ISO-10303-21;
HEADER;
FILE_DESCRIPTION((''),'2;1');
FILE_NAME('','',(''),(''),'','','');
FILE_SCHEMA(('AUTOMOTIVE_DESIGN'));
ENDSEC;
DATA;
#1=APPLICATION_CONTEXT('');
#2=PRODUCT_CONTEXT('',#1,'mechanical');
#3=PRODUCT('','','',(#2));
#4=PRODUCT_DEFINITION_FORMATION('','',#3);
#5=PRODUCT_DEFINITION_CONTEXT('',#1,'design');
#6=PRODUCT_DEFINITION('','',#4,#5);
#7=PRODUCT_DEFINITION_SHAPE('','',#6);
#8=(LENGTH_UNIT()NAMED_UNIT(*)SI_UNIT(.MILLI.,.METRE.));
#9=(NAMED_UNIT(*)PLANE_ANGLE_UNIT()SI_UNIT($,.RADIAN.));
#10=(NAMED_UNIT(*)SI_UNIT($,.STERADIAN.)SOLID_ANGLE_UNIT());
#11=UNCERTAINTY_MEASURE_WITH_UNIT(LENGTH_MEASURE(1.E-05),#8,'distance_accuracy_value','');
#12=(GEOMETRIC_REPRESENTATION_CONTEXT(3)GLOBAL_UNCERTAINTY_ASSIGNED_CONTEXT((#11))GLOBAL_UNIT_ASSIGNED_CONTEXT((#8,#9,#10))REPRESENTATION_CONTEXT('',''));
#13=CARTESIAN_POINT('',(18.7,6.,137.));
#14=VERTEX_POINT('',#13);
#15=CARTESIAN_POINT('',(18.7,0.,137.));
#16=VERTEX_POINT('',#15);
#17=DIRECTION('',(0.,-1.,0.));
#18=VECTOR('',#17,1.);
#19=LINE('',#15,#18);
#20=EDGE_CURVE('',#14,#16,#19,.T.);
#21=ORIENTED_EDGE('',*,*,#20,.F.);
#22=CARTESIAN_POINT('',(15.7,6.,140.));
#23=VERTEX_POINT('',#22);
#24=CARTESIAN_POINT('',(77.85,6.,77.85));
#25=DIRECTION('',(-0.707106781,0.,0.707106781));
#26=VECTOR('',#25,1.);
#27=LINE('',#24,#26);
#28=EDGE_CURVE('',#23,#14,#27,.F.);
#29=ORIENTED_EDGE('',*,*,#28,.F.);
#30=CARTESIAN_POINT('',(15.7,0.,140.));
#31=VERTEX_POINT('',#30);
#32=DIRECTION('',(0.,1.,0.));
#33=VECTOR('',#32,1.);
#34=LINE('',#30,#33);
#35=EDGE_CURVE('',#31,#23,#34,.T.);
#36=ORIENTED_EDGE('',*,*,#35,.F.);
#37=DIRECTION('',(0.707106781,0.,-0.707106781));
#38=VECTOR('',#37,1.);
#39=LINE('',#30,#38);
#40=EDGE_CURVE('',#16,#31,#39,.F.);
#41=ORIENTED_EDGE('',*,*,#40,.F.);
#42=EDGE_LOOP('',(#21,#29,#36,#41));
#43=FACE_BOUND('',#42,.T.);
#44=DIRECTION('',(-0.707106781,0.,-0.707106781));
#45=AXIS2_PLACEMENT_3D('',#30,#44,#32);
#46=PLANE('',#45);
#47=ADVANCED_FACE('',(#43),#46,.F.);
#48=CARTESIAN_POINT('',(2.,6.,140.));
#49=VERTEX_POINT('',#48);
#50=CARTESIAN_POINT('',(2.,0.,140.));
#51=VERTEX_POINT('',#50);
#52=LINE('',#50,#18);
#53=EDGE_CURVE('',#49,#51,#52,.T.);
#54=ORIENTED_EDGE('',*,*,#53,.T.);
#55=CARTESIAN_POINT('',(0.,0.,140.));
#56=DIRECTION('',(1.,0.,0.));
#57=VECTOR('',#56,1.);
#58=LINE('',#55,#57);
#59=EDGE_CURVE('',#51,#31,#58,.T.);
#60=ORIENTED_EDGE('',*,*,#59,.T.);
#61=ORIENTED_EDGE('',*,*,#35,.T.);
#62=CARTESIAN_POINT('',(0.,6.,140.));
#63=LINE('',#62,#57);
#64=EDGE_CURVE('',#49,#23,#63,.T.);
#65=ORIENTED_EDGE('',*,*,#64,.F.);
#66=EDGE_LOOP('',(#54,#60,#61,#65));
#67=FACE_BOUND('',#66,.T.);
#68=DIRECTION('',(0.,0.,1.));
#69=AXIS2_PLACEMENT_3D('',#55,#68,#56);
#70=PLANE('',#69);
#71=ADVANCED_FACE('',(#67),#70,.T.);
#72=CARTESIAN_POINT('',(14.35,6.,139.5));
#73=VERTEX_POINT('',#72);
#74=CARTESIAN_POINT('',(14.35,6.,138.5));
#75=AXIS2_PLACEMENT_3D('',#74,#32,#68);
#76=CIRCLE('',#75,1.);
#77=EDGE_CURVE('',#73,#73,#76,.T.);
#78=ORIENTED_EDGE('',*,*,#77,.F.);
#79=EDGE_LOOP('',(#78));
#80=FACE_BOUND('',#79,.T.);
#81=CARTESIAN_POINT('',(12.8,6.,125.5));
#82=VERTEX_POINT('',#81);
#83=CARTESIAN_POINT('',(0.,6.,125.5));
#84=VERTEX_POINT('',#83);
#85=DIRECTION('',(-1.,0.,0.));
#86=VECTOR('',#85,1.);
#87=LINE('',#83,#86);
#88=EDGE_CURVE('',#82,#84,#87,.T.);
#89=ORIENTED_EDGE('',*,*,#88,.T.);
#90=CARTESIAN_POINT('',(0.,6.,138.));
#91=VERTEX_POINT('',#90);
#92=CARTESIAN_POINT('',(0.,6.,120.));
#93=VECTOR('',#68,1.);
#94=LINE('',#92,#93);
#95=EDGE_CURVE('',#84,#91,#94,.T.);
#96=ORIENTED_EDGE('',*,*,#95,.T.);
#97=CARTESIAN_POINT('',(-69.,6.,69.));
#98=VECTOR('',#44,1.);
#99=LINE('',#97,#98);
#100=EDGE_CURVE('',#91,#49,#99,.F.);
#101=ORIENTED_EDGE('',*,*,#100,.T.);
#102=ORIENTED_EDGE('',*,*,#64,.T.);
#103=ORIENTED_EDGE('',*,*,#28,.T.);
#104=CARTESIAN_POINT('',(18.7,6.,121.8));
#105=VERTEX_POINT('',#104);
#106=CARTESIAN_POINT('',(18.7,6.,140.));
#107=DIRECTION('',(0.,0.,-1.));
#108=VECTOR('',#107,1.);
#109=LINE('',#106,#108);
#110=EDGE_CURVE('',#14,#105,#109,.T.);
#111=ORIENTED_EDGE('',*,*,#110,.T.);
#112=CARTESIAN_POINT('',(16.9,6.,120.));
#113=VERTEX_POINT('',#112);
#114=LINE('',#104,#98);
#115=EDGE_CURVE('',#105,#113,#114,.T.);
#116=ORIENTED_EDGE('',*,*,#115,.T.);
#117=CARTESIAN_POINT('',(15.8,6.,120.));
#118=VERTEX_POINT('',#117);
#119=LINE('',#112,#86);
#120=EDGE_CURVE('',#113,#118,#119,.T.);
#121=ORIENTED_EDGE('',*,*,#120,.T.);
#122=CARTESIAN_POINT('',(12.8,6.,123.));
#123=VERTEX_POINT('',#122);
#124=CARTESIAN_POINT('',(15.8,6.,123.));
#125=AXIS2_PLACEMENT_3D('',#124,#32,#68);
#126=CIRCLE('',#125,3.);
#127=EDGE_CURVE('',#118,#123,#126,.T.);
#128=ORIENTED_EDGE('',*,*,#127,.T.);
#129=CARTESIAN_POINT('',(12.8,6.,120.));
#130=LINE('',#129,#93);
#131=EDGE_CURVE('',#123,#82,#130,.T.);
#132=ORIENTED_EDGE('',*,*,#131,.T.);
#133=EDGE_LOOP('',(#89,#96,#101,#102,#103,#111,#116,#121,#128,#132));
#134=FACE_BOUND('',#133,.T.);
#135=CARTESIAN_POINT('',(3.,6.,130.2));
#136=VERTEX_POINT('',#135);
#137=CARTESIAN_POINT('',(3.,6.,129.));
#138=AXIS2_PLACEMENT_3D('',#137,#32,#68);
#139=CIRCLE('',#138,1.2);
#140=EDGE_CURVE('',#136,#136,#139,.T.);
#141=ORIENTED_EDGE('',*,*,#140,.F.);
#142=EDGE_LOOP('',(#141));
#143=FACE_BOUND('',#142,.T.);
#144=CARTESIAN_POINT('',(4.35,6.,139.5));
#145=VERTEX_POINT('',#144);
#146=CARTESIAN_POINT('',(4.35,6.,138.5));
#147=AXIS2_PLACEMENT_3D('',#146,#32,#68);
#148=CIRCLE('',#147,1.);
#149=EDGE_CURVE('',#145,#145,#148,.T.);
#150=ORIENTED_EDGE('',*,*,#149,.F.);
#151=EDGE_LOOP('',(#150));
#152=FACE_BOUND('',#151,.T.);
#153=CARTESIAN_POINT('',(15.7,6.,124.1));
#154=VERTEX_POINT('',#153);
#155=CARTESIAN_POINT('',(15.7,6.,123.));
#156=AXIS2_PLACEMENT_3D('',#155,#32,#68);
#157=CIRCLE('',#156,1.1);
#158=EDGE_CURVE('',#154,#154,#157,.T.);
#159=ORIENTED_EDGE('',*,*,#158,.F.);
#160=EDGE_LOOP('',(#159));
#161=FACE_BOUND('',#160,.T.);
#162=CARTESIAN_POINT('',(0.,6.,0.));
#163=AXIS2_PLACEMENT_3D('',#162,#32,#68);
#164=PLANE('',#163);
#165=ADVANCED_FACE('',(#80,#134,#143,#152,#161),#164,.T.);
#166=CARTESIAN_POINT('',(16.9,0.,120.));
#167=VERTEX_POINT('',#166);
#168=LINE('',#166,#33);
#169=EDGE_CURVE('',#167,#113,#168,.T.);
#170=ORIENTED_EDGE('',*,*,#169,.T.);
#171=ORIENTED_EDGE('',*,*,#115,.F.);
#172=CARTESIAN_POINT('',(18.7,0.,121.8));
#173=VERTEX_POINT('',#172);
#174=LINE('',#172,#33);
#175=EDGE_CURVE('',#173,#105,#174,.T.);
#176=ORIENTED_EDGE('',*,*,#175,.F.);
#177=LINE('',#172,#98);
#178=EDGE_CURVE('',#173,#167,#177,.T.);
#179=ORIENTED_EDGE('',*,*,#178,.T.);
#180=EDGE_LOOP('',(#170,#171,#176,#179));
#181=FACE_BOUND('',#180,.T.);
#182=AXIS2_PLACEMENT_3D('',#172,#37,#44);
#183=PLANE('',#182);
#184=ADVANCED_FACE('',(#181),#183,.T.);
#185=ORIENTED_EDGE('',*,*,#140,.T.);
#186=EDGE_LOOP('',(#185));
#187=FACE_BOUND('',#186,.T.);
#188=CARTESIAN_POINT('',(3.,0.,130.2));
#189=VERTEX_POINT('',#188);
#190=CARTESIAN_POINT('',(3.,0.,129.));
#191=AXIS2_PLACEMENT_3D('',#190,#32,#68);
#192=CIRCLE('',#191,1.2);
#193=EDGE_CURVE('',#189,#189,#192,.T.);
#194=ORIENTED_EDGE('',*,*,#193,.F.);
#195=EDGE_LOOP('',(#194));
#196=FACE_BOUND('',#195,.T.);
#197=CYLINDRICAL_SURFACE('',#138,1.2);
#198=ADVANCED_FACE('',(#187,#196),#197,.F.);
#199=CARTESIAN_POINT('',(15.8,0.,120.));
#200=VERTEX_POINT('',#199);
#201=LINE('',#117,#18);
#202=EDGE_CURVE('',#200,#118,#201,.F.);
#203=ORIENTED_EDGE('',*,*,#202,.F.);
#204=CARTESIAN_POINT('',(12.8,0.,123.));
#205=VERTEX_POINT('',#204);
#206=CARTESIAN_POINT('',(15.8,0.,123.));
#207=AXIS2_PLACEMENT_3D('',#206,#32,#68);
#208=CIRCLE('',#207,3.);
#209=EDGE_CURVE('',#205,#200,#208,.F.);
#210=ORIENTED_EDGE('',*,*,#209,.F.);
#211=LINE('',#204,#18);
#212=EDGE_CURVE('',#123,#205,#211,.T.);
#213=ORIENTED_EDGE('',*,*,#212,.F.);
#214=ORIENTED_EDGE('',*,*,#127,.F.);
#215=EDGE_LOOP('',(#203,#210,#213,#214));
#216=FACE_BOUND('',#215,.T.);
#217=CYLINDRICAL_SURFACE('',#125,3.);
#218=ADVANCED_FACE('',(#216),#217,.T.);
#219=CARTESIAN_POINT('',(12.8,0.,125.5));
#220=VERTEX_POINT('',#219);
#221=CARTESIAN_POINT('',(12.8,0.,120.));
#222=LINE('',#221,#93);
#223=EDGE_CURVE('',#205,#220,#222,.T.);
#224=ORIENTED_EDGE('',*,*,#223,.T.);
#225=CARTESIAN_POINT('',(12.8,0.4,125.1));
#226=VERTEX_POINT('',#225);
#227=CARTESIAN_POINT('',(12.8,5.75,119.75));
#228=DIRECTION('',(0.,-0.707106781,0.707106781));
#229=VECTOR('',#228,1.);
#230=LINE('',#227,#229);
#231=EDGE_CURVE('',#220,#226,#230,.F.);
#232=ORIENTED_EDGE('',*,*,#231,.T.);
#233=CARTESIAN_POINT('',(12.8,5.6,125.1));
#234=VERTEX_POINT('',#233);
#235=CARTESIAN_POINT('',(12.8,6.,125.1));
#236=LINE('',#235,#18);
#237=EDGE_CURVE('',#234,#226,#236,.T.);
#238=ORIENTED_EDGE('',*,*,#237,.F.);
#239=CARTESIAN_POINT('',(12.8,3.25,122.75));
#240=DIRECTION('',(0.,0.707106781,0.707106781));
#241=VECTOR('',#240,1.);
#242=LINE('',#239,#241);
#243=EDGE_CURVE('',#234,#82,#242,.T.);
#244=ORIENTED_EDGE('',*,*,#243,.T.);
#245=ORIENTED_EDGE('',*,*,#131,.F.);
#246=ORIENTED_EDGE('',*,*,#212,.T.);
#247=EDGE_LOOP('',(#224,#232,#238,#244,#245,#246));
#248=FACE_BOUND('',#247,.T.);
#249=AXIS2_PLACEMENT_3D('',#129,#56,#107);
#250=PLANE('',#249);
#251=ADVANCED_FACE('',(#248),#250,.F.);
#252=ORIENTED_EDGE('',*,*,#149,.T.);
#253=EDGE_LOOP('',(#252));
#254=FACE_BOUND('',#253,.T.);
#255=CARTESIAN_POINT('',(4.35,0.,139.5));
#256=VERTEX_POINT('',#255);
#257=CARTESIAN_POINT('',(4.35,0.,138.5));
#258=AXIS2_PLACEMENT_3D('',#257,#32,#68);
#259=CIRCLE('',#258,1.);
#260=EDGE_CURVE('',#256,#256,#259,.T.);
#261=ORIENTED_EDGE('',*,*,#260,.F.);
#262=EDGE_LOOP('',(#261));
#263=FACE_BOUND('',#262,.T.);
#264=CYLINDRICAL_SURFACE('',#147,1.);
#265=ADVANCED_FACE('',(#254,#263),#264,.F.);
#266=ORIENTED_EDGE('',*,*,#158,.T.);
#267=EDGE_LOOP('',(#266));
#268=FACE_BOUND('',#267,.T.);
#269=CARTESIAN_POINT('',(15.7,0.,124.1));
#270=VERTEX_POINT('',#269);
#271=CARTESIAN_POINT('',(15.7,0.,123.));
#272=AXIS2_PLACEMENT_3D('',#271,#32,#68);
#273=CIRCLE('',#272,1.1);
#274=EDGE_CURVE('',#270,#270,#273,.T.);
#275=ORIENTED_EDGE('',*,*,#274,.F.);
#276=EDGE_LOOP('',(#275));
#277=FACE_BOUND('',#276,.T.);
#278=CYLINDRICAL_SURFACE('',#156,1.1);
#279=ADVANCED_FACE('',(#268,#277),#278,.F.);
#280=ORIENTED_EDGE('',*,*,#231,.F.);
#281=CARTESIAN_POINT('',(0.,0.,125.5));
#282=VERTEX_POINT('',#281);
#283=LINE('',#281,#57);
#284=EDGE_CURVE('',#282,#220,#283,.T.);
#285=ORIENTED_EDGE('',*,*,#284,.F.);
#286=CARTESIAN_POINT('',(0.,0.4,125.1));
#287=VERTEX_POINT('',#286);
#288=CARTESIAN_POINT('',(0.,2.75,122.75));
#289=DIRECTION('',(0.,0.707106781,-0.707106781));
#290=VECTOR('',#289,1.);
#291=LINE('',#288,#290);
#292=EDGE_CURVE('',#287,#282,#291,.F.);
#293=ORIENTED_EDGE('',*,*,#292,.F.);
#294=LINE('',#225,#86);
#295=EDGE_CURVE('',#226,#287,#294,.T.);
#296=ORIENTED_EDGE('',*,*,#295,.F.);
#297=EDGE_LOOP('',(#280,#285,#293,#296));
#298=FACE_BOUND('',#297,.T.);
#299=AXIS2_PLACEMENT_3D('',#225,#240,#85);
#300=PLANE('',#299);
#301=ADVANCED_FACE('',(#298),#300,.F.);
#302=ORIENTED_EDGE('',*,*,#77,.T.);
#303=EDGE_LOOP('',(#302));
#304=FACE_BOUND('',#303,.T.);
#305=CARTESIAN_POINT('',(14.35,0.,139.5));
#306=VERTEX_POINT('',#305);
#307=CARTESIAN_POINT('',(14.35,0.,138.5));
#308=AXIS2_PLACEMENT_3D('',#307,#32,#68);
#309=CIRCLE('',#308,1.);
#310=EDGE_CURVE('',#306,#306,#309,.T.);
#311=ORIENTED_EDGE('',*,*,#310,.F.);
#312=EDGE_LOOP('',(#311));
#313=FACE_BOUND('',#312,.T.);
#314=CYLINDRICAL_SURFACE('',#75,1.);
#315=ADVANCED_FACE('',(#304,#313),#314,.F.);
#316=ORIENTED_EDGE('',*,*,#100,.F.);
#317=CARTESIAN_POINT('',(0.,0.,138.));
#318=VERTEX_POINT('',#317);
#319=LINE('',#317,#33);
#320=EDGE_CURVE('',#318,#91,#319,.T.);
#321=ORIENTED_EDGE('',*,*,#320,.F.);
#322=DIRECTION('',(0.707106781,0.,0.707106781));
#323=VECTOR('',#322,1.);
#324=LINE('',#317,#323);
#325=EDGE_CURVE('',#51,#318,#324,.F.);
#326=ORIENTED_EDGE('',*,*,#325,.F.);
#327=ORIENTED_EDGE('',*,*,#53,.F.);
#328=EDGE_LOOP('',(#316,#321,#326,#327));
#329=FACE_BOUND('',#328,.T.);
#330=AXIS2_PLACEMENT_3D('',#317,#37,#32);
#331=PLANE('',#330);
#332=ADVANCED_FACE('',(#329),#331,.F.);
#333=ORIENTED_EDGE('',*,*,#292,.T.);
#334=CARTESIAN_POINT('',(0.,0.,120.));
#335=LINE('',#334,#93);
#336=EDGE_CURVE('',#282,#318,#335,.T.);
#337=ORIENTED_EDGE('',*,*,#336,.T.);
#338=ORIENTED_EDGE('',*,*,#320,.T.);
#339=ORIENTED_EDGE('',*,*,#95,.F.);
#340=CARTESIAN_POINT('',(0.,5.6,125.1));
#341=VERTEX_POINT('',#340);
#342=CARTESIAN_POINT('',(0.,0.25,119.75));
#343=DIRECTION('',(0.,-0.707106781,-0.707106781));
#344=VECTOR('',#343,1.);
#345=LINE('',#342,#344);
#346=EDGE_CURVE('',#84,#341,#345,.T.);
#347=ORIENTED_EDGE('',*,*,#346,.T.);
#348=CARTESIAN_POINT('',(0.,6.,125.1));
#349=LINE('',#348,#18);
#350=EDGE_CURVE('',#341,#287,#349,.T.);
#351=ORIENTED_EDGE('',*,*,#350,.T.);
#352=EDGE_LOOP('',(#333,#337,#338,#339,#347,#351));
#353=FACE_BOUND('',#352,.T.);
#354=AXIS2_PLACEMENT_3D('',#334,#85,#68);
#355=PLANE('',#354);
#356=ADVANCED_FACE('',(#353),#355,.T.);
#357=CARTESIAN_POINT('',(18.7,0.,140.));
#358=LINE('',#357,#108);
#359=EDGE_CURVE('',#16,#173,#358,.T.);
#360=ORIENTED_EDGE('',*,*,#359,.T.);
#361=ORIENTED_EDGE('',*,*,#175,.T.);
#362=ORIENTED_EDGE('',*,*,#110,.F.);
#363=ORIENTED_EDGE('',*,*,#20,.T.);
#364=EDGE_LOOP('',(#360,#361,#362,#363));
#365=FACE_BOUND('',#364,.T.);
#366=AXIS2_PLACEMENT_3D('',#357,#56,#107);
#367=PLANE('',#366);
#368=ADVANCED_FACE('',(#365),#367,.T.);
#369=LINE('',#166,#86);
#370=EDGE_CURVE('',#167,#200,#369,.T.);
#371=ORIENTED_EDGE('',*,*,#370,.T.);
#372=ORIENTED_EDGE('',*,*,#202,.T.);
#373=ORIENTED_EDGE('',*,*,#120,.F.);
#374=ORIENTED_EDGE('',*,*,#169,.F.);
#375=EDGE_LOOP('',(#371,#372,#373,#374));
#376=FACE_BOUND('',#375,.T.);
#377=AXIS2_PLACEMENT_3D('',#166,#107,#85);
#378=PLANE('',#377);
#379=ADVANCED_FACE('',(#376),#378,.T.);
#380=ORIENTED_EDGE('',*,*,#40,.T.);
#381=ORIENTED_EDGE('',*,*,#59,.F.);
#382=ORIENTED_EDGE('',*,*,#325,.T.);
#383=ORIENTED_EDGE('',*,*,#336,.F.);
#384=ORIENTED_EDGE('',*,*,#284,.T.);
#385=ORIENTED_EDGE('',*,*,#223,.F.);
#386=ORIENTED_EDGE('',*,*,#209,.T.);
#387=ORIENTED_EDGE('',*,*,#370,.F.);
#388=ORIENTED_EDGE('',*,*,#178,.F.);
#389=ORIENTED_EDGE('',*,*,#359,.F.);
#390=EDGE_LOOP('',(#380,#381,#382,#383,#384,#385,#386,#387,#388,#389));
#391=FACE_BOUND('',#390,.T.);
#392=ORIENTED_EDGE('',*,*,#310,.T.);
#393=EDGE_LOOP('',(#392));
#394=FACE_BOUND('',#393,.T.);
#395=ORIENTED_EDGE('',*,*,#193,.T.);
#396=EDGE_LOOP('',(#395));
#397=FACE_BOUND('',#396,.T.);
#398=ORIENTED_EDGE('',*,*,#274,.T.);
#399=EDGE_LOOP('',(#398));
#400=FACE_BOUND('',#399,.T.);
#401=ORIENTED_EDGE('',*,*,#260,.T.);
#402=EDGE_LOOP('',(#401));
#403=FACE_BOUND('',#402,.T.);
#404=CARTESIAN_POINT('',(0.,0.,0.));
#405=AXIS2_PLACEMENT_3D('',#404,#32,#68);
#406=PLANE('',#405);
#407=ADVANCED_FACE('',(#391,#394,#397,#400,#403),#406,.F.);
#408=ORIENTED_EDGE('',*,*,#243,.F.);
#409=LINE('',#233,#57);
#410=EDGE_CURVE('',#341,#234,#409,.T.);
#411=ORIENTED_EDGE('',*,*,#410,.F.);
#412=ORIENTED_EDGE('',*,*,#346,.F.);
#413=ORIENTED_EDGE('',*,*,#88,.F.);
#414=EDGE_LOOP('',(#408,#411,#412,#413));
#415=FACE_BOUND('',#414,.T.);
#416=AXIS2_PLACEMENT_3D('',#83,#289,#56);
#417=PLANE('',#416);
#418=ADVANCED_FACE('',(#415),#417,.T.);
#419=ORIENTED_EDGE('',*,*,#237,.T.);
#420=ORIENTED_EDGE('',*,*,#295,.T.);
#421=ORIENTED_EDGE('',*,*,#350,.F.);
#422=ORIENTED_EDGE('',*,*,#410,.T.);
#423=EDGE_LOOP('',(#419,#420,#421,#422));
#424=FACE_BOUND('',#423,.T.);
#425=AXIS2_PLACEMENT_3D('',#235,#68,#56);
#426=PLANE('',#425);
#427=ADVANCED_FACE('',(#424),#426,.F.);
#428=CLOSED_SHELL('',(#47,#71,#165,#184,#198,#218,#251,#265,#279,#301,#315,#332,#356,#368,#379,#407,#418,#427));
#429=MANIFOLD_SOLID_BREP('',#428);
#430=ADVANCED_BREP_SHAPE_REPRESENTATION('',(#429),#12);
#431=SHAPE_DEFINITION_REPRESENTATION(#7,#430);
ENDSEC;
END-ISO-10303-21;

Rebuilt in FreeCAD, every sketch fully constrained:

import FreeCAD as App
import Part
import Sketcher
Q = App.Units.Quantity


def edges_at(feature, points):
    """Names of the edges that pass closest to the given points."""
    edges = feature.Shape.Edges
    near = lambda p: min(range(len(edges)), key=lambda i: edges[i].distToShape(Part.Vertex(*p))[0])
    return sorted({f"Edge{near(p) + 1}" for p in points})


def add_polygon(sketch, points):
    """Adds a closed chain of lines whose ends are joined by coincident constraints."""
    first, n = sketch.GeometryCount, len(points)
    for a, b in zip(points, points[1:] + points[:1]):
        sketch.addGeometry(Part.LineSegment(App.Vector(*a, 0), App.Vector(*b, 0)), False)
    for i in range(n):
        sketch.addConstraint(Sketcher.Constraint("Coincident", first + i, 2, first + (i + 1) % n, 1))

doc = App.newDocument("Part")
body = doc.addObject("PartDesign::Body", "Body")

sketch1 = body.newObject("Sketcher::SketchObject", "Sketch")
sketch1.AttachmentSupport = (doc.getObject("XZ_Plane"), [""])
sketch1.MapMode = "FlatFace"
sketch1.AttachmentOffset = App.Placement(App.Vector(0, 0, -6), App.Rotation())
add_polygon(sketch1, [(16.9, 120), (0, 120), (0, 140), (18.7, 140), (18.7, 121.8)])
sketch1.addConstraint([
    Sketcher.Constraint("Horizontal", 0),
    Sketcher.Constraint("Vertical", 1),
    Sketcher.Constraint("Horizontal", 2),
    Sketcher.Constraint("Vertical", 3),
    Sketcher.Constraint("PointOnObject", 0, 2, -2),
    Sketcher.Constraint("DistanceY", 1, 1, 1, 2, 20.0),
    Sketcher.Constraint("Angle", 4, Q("-135 deg")),
    Sketcher.Constraint("DistanceX", 0, 2, 0, 1, 16.9),
    Sketcher.Constraint("DistanceX", 2, 1, 2, 2, 18.7),
    Sketcher.Constraint("DistanceY", -1, 1, 0, 2, 120.0),
])
pad1 = body.newObject("PartDesign::Pad", "Pad")
pad1.Profile = sketch1
pad1.Length = 6

sketch2 = body.newObject("Sketcher::SketchObject", "Sketch001")
sketch2.AttachmentSupport = (doc.getObject("XZ_Plane"), [""])
sketch2.MapMode = "FlatFace"
add_polygon(sketch2, [(0, 125), (0, 120), (13, 120), (13, 125)])
sketch2.addConstraint([
    Sketcher.Constraint("Vertical", 0),
    Sketcher.Constraint("Horizontal", 1),
    Sketcher.Constraint("Vertical", 2),
    Sketcher.Constraint("Horizontal", 3),
    Sketcher.Constraint("PointOnObject", 0, 2, -2),
    Sketcher.Constraint("DistanceX", 1, 1, 1, 2, 12.8),
    Sketcher.Constraint("DistanceY", 0, 2, 0, 1, 5.1),
    Sketcher.Constraint("DistanceY", -1, 1, 0, 2, 120.0),
])
pocket1 = body.newObject("PartDesign::Pocket", "Pocket")
pocket1.Profile = sketch2
pocket1.Type = "ThroughAll"

sketch3 = body.newObject("Sketcher::SketchObject", "Sketch002")
sketch3.AttachmentSupport = (doc.getObject("XZ_Plane"), [""])
sketch3.MapMode = "FlatFace"
sketch3.AttachmentOffset = App.Placement(App.Vector(0, 0, -6), App.Rotation())
sketch3.addGeometry([
    Part.Circle(App.Vector(14.3, 138.5, 0), App.Vector(0, 0, 1), 1),
    Part.Circle(App.Vector(4.3, 138.5, 0), App.Vector(0, 0, 1), 1),
], False)
sketch3.addConstraint([
    Sketcher.Constraint("Equal", 0, 1),
    Sketcher.Constraint("Horizontal", 0, 3, 1, 3),
    Sketcher.Constraint("Diameter", 0, 2.0),
    Sketcher.Constraint("DistanceX", 1, 3, 0, 3, 10.0),
    Sketcher.Constraint("DistanceY", -1, 1, 0, 3, 138.5),
    Sketcher.Constraint("DistanceX", -1, 1, 0, 3, 14.35),
])
doc.recompute()
hole = body.newObject("PartDesign::Hole", "Hole")
hole.Profile = sketch3
hole.ThreadType = "None"
hole.Diameter = 2
hole.DepthType = "ThroughAll"
hole.Reversed = True

sketch4 = body.newObject("Sketcher::SketchObject", "Sketch003")
sketch4.AttachmentSupport = (doc.getObject("XZ_Plane"), [""])
sketch4.MapMode = "FlatFace"
sketch4.AttachmentOffset = App.Placement(App.Vector(0, 0, -6), App.Rotation())
sketch4.addGeometry(Part.Circle(App.Vector(3, 129, 0), App.Vector(0, 0, 1), 1.2), False)
sketch4.addConstraint([
    Sketcher.Constraint("Diameter", 0, 2.4),
    Sketcher.Constraint("DistanceX", -1, 1, 0, 3, 3.0),
    Sketcher.Constraint("DistanceY", -1, 1, 0, 3, 129.0),
])
doc.recompute()
hole2 = body.newObject("PartDesign::Hole", "Hole001")
hole2.Profile = sketch4
hole2.ThreadType = "None"
hole2.Diameter = 2.4
hole2.DepthType = "ThroughAll"
hole2.Reversed = True

sketch5 = body.newObject("Sketcher::SketchObject", "Sketch004")
sketch5.AttachmentSupport = (doc.getObject("XZ_Plane"), [""])
sketch5.MapMode = "FlatFace"
sketch5.AttachmentOffset = App.Placement(App.Vector(0, 0, -6), App.Rotation())
sketch5.addGeometry(Part.Circle(App.Vector(15.7, 123, 0), App.Vector(0, 0, 1), 1.1), False)
sketch5.addConstraint([
    Sketcher.Constraint("Diameter", 0, 2.2),
    Sketcher.Constraint("DistanceY", -1, 1, 0, 3, 123.0),
    Sketcher.Constraint("DistanceX", -1, 1, 0, 3, 15.7),
])
doc.recompute()
hole3 = body.newObject("PartDesign::Hole", "Hole002")
hole3.Profile = sketch5
hole3.ThreadType = "None"
hole3.Diameter = 2.2
hole3.DepthType = "ThroughAll"
hole3.Reversed = True
doc.recompute()

chamfer = body.newObject("PartDesign::Chamfer", "Chamfer")
chamfer.Base = (hole3, edges_at(hole3, [(6.4, 6, 125.1), (6.4, 0, 125.1)]))
chamfer.Size = 0.4
doc.recompute()

chamfer2 = body.newObject("PartDesign::Chamfer", "Chamfer001")
chamfer2.Base = (chamfer, edges_at(chamfer, [(18.7, 3, 140)]))
chamfer2.Size = 3
doc.recompute()

chamfer3 = body.newObject("PartDesign::Chamfer", "Chamfer002")
chamfer3.Base = (chamfer2, edges_at(chamfer2, [(0, 3, 140)]))
chamfer3.Size = 2
doc.recompute()

fillet = body.newObject("PartDesign::Fillet", "Fillet")
fillet.Base = (chamfer3, edges_at(chamfer3, [(12.8, 3, 120)]))
fillet.Radius = 3

doc.recompute()
